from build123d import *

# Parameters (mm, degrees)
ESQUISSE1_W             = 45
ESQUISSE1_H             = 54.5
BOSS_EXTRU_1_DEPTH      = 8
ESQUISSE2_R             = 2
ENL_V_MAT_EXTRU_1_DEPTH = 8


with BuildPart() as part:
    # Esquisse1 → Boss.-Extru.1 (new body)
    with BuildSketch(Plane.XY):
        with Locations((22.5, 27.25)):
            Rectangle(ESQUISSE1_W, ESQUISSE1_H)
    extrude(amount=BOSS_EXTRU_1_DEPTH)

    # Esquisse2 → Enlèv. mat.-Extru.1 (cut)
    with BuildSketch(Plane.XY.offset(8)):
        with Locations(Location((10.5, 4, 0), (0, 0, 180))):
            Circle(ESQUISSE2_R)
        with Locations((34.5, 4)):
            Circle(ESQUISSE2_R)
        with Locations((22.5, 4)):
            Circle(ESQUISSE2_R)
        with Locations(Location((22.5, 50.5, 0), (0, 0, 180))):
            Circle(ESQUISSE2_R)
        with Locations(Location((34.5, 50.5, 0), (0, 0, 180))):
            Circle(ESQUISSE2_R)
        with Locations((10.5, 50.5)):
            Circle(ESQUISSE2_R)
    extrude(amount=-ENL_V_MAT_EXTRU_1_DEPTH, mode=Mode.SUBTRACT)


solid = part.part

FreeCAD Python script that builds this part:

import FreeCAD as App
import Part
import Sketcher
Q = App.Units.Quantity


def add_polygon(sketch, points):
    """Adds a closed chain of lines whose ends are joined by coincident constraints."""
    first, n = sketch.GeometryCount, len(points)
    for a, b in zip(points, points[1:] + points[:1]):
        sketch.addGeometry(Part.LineSegment(App.Vector(*a, 0), App.Vector(*b, 0)), False)
    for i in range(n):
        sketch.addConstraint(Sketcher.Constraint("Coincident", first + i, 2, first + (i + 1) % n, 1))

doc = App.newDocument("Part")
body = doc.addObject("PartDesign::Body", "Body")

# Sketch on XY plane
sketch1 = body.newObject("Sketcher::SketchObject", "Sketch")
sketch1.AttachmentSupport = (doc.getObject("XY_Plane"), [""])
sketch1.MapMode = "FlatFace"
add_polygon(sketch1, [(0, 54), (0, 0), (45, 0), (45, 54)])  # lines 0-3
sketch1.addConstraint([
    Sketcher.Constraint("Vertical", 0),
    Sketcher.Constraint("Horizontal", 1),
    Sketcher.Constraint("Vertical", 2),
    Sketcher.Constraint("Horizontal", 3),
    Sketcher.Constraint("Coincident", 0, 2, -1, 1),
    Sketcher.Constraint("DistanceX", 1, 1, 1, 2, Q("45 mm")),
    Sketcher.Constraint("DistanceY", 0, 2, 0, 1, Q("54.5 mm")),
])
pad1 = body.newObject("PartDesign::Pad", "Pad")
pad1.Profile = sketch1
pad1.Length = 8

# Sketch on XY plane
sketch2 = body.newObject("Sketcher::SketchObject", "Sketch001")
sketch2.AttachmentSupport = (doc.getObject("XY_Plane"), [""])
sketch2.MapMode = "FlatFace"
sketch2.AttachmentOffset = App.Placement(App.Vector(0, 0, 8), App.Rotation())
sketch2.addGeometry([
    Part.Circle(App.Vector(10.5, 4, 0), App.Vector(0, 0, 1), 2),  # 0
    Part.Circle(App.Vector(34.5, 4, 0), App.Vector(0, 0, 1), 2),  # 1
    Part.Circle(App.Vector(22.5, 4, 0), App.Vector(0, 0, 1), 2),  # 2
    Part.Circle(App.Vector(22.5, 50.5, 0), App.Vector(0, 0, 1), 2),  # 3
    Part.Circle(App.Vector(34.5, 50.5, 0), App.Vector(0, 0, 1), 2),  # 4
    Part.Circle(App.Vector(10.5, 50.5, 0), App.Vector(0, 0, 1), 2),  # 5
], False)
sketch2.addConstraint([
    Sketcher.Constraint("Equal", 0, 1),
    Sketcher.Constraint("Equal", 1, 2),
    Sketcher.Constraint("Equal", 2, 3),
    Sketcher.Constraint("Equal", 3, 4),
    Sketcher.Constraint("Equal", 4, 5),
    Sketcher.Constraint("Horizontal", 0, 3, 1, 3),
    Sketcher.Constraint("Horizontal", 1, 3, 2, 3),
    Sketcher.Constraint("Horizontal", 3, 3, 4, 3),
    Sketcher.Constraint("Horizontal", 4, 3, 5, 3),
    Sketcher.Constraint("Vertical", 2, 3, 3, 3),
    Sketcher.Constraint("Vertical", 1, 3, 4, 3),
    Sketcher.Constraint("Vertical", 0, 3, 5, 3),
    Sketcher.Constraint("Diameter", 0, Q("4 mm")),
    Sketcher.Constraint("DistanceY", -1, 1, 0, 3, Q("4 mm")),
    Sketcher.Constraint("DistanceX", 0, 3, 1, 3, Q("24 mm")),
    Sketcher.Constraint("DistanceX", 0, 3, 2, 3, Q("12 mm")),
    Sketcher.Constraint("DistanceX", -1, 1, 0, 3, Q("10.5 mm")),
    Sketcher.Constraint("DistanceY", -1, 1, 3, 3, Q("50.5 mm")),
])
pocket1 = body.newObject("PartDesign::Pocket", "Pocket")
pocket1.Profile = sketch2
pocket1.Length = 8

doc.recompute()
